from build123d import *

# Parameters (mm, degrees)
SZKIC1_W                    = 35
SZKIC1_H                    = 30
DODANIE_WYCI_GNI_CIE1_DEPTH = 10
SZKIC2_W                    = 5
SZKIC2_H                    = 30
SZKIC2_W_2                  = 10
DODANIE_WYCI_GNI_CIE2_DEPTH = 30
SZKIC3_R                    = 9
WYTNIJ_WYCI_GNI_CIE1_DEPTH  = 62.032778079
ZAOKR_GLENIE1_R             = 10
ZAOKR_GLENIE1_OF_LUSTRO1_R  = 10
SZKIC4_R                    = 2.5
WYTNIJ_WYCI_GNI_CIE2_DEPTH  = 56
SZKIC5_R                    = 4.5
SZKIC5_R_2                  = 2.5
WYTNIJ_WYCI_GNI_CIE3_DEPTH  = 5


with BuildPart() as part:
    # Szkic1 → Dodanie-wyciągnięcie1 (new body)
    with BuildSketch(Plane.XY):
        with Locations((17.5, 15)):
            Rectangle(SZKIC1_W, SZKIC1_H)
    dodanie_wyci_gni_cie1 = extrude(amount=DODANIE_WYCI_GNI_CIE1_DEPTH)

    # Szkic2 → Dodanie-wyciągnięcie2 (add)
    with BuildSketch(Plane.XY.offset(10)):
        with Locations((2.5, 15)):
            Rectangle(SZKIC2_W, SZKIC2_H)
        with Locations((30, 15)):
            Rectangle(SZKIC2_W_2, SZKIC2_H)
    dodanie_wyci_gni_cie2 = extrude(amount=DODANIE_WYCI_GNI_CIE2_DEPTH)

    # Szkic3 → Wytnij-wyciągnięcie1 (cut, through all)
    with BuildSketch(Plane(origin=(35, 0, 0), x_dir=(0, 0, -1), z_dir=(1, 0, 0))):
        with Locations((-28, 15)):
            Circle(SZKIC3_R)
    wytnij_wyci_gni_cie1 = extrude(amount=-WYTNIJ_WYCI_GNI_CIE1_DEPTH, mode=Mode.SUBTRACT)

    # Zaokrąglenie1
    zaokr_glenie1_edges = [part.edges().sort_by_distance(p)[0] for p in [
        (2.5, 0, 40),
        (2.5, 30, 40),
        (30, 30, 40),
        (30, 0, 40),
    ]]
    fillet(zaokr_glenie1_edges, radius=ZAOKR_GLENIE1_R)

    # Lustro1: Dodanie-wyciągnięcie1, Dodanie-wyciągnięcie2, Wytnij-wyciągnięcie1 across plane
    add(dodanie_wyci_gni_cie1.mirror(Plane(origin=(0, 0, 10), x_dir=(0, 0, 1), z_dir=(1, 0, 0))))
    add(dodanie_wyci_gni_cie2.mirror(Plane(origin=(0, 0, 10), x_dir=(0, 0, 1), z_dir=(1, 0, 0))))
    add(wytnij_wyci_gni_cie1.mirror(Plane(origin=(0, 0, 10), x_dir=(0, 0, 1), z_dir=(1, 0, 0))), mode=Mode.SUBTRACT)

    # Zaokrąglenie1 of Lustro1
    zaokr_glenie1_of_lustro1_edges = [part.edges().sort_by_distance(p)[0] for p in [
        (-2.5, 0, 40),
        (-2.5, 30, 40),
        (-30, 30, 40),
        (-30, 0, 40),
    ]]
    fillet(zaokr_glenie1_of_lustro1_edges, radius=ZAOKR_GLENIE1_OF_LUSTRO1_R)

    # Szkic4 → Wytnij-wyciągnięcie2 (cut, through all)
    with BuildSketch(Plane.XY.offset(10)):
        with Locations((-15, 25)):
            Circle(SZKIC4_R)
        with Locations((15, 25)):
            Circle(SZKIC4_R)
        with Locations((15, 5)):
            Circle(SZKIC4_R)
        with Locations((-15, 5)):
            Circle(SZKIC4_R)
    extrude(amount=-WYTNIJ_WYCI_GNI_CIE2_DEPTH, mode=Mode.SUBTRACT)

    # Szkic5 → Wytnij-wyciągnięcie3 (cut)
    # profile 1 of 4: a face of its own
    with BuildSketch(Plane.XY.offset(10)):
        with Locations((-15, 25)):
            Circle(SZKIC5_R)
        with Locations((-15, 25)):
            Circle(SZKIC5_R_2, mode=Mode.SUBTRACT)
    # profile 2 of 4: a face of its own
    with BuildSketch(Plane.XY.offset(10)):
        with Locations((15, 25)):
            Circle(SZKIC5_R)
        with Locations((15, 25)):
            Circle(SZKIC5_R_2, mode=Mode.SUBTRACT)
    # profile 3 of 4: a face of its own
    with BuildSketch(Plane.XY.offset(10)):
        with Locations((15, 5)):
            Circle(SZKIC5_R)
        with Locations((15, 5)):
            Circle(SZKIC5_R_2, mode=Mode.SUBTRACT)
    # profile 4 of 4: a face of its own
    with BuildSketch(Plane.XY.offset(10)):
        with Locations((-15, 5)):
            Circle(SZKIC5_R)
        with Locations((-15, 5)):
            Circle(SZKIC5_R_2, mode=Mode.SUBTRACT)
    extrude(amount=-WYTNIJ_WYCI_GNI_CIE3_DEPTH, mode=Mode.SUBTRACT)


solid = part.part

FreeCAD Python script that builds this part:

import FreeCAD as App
import Part
import Sketcher

V = App.Vector


def edges_at(feature, points):
    """Names of the edges that pass closest to the given points."""
    edges = feature.Shape.Edges
    near = lambda p: min(range(len(edges)), key=lambda i: edges[i].distToShape(Part.Vertex(*p))[0])
    return sorted({f"Edge{near(p) + 1}" for p in points})

doc = App.newDocument("Part")
params = doc.addObject("Spreadsheet::Sheet", "Params")
for row, (alias, value) in enumerate([
    ("sketch1_width", "35 mm"),
    ("sketch1_height", "30 mm"),
    ("pad1_length", "10 mm"),
    ("sketch2_width", "5 mm"),
    ("sketch2_width2", "10 mm"),
    ("sketch2_height", "30 mm"),
    ("pad2_length", "30 mm"),
    ("sketch3_diameter", "18 mm"),
    ("fillet_radius", "10 mm"),
    ("fillet2_radius", "10 mm"),
    ("sketch4_diameter", "5 mm"),
    ("sketch5_diameter", "9 mm"),
    ("sketch5_diameter2", "5 mm"),
    ("pocket3_length", "5 mm"),
], start=1):
    params.set(f"A{row}", alias)
    params.set(f"B{row}", "=" + value)
    params.setAlias(f"B{row}", alias)

body = doc.addObject("PartDesign::Body", "Body")

# Sketch on XY plane
sketch1 = body.newObject("Sketcher::SketchObject", "Sketch")
sketch1.AttachmentSupport = (doc.getObject("XY_Plane"), [""])
sketch1.MapMode = "FlatFace"
sketch1.addGeometry(Part.LineSegment(V(0, 30, 0), V(0, 0, 0)), False)
sketch1.addGeometry(Part.LineSegment(V(0, 0, 0), V(35, 0, 0)), False)
sketch1.addGeometry(Part.LineSegment(V(35, 0, 0), V(35, 30, 0)), False)
sketch1.addGeometry(Part.LineSegment(V(35, 30, 0), V(0, 30, 0)), False)
sketch1.addConstraint(Sketcher.Constraint("Coincident", 0, 2, 1, 1))
sketch1.addConstraint(Sketcher.Constraint("Coincident", 1, 2, 2, 1))
sketch1.addConstraint(Sketcher.Constraint("Coincident", 2, 2, 3, 1))
sketch1.addConstraint(Sketcher.Constraint("Coincident", 3, 2, 0, 1))
sketch1.addConstraint(Sketcher.Constraint("Vertical", 0))
sketch1.addConstraint(Sketcher.Constraint("Horizontal", 1))
sketch1.addConstraint(Sketcher.Constraint("Vertical", 2))
sketch1.addConstraint(Sketcher.Constraint("Horizontal", 3))
sketch1.addConstraint(Sketcher.Constraint("Coincident", 0, 2, -1, 1))
sketch1.addConstraint(Sketcher.Constraint("DistanceX", 1, 1, 1, 2, 35.0))
sketch1.addConstraint(Sketcher.Constraint("DistanceY", 0, 2, 0, 1, 30.0))
sketch1.setExpression("Constraints[9]", "Params.sketch1_width")
sketch1.setExpression("Constraints[10]", "Params.sketch1_height")
pad1 = body.newObject("PartDesign::Pad", "Pad")
pad1.Profile = sketch1
pad1.setExpression("Length", "Params.pad1_length")

# Sketch on XY plane
sketch2 = body.newObject("Sketcher::SketchObject", "Sketch001")
sketch2.AttachmentSupport = (doc.getObject("XY_Plane"), [""])
sketch2.MapMode = "FlatFace"
sketch2.AttachmentOffset = App.Placement(V(0, 0, 10), App.Rotation())
sketch2.addGeometry(Part.LineSegment(V(0, 30, 0), V(0, 0, 0)), False)
sketch2.addGeometry(Part.LineSegment(V(0, 0, 0), V(5, 0, 0)), False)
sketch2.addGeometry(Part.LineSegment(V(5, 0, 0), V(5, 30, 0)), False)
sketch2.addGeometry(Part.LineSegment(V(5, 30, 0), V(0, 30, 0)), False)
sketch2.addGeometry(Part.LineSegment(V(25, 30, 0), V(25, 0, 0)), False)
sketch2.addGeometry(Part.LineSegment(V(25, 0, 0), V(35, 0, 0)), False)
sketch2.addGeometry(Part.LineSegment(V(35, 0, 0), V(35, 30, 0)), False)
sketch2.addGeometry(Part.LineSegment(V(35, 30, 0), V(25, 30, 0)), False)
sketch2.addConstraint(Sketcher.Constraint("Coincident", 0, 2, 1, 1))
sketch2.addConstraint(Sketcher.Constraint("Coincident", 1, 2, 2, 1))
sketch2.addConstraint(Sketcher.Constraint("Coincident", 2, 2, 3, 1))
sketch2.addConstraint(Sketcher.Constraint("Coincident", 3, 2, 0, 1))
sketch2.addConstraint(Sketcher.Constraint("Coincident", 4, 2, 5, 1))
sketch2.addConstraint(Sketcher.Constraint("Coincident", 5, 2, 6, 1))
sketch2.addConstraint(Sketcher.Constraint("Coincident", 6, 2, 7, 1))
sketch2.addConstraint(Sketcher.Constraint("Coincident", 7, 2, 4, 1))
sketch2.addConstraint(Sketcher.Constraint("Vertical", 0))
sketch2.addConstraint(Sketcher.Constraint("Horizontal", 1))
sketch2.addConstraint(Sketcher.Constraint("Vertical", 2))
sketch2.addConstraint(Sketcher.Constraint("Horizontal", 3))
sketch2.addConstraint(Sketcher.Constraint("Vertical", 4))
sketch2.addConstraint(Sketcher.Constraint("Horizontal", 5))
sketch2.addConstraint(Sketcher.Constraint("Vertical", 6))
sketch2.addConstraint(Sketcher.Constraint("Horizontal", 7))
sketch2.addConstraint(Sketcher.Constraint("Coincident", 0, 2, -1, 1))
sketch2.addConstraint(Sketcher.Constraint("PointOnObject", 4, 2, -1))
sketch2.addConstraint(Sketcher.Constraint("Horizontal", 3, 2, 6, 2))
sketch2.addConstraint(Sketcher.Constraint("DistanceX", 1, 1, 1, 2, 5.0))
sketch2.addConstraint(Sketcher.Constraint("DistanceX", 5, 1, 5, 2, 10.0))
sketch2.addConstraint(Sketcher.Constraint("DistanceY", 0, 2, 0, 1, 30.0))
sketch2.addConstraint(Sketcher.Constraint("DistanceX", -1, 1, 4, 2, 25.0))
sketch2.setExpression("Constraints[19]", "Params.sketch2_width")
sketch2.setExpression("Constraints[20]", "Params.sketch2_width2")
sketch2.setExpression("Constraints[21]", "Params.sketch2_height")
pad2 = body.newObject("PartDesign::Pad", "Pad001")
pad2.Profile = sketch2
pad2.setExpression("Length", "Params.pad2_length")

# Sketch on YZ plane
sketch3 = body.newObject("Sketcher::SketchObject", "Sketch002")
sketch3.AttachmentSupport = (doc.getObject("YZ_Plane"), [""])
sketch3.MapMode = "FlatFace"
sketch3.AttachmentOffset = App.Placement(V(0, 0, 35), App.Rotation())
sketch3.addGeometry(Part.Circle(V(15, 28, 0), V(0, 0, 1), 9), False)
sketch3.addConstraint(Sketcher.Constraint("Diameter", 0, 18.0))
sketch3.addConstraint(Sketcher.Constraint("DistanceX", -1, 1, 0, 3, 15.0))
sketch3.addConstraint(Sketcher.Constraint("DistanceY", -1, 1, 0, 3, 28.0))
sketch3.setExpression("Constraints[0]", "Params.sketch3_diameter")
pocket1 = body.newObject("PartDesign::Pocket", "Pocket")
pocket1.Profile = sketch3
pocket1.Type = "ThroughAll"
doc.recompute()

fillet = body.newObject("PartDesign::Fillet", "Fillet")
fillet.Base = (pocket1, edges_at(pocket1, [
    (2.5, 0, 40),
    (2.5, 30, 40),
    (30, 30, 40),
    (30, 0, 40),
]))
fillet.setExpression("Radius", "Params.fillet_radius")
doc.recompute()

mirrored = body.newObject("PartDesign::Mirrored", "Mirrored")
mirrored.Originals = [pad1, pad2, pocket1]
mirrored.MirrorPlane = (doc.getObject("YZ_Plane"), [""])
body.Tip = mirrored
doc.recompute()

fillet2 = body.newObject("PartDesign::Fillet", "Fillet001")
fillet2.Base = (mirrored, edges_at(mirrored, [
    (-2.5, 0, 40),
    (-2.5, 30, 40),
    (-30, 30, 40),
    (-30, 0, 40),
]))
fillet2.setExpression("Radius", "Params.fillet2_radius")

# Sketch on XY plane
sketch4 = body.newObject("Sketcher::SketchObject", "Sketch003")
sketch4.AttachmentSupport = (doc.getObject("XY_Plane"), [""])
sketch4.MapMode = "FlatFace"
sketch4.AttachmentOffset = App.Placement(V(0, 0, 10), App.Rotation())
sketch4.addGeometry(Part.Circle(V(-15, 25, 0), V(0, 0, 1), 2.5), False)
sketch4.addGeometry(Part.Circle(V(15, 25, 0), V(0, 0, 1), 2.5), False)
sketch4.addGeometry(Part.Circle(V(15, 5, 0), V(0, 0, 1), 2.5), False)
sketch4.addGeometry(Part.Circle(V(-15, 5, 0), V(0, 0, 1), 2.5), False)
sketch4.addConstraint(Sketcher.Constraint("Equal", 0, 1))
sketch4.addConstraint(Sketcher.Constraint("Equal", 1, 2))
sketch4.addConstraint(Sketcher.Constraint("Equal", 2, 3))
sketch4.addConstraint(Sketcher.Constraint("Symmetric", 0, 3, 1, 3, -2))
sketch4.addConstraint(Sketcher.Constraint("Symmetric", 2, 3, 3, 3, -2))
sketch4.addConstraint(Sketcher.Constraint("Vertical", 1, 3, 2, 3))
sketch4.addConstraint(Sketcher.Constraint("Diameter", 0, 5.0))
sketch4.addConstraint(Sketcher.Constraint("DistanceX", 0, 3, -1, 1, 15.0))
sketch4.addConstraint(Sketcher.Constraint("DistanceY", -1, 1, 0, 3, 25.0))
sketch4.addConstraint(Sketcher.Constraint("DistanceY", -1, 1, 2, 3, 5.0))
sketch4.setExpression("Constraints[6]", "Params.sketch4_diameter")
pocket2 = body.newObject("PartDesign::Pocket", "Pocket001")
pocket2.Profile = sketch4
pocket2.Type = "ThroughAll"

# Sketch on XY plane
sketch5 = body.newObject("Sketcher::SketchObject", "Sketch004")
sketch5.AttachmentSupport = (doc.getObject("XY_Plane"), [""])
sketch5.MapMode = "FlatFace"
sketch5.AttachmentOffset = App.Placement(V(0, 0, 10), App.Rotation())
sketch5.addGeometry(Part.Circle(V(-15, 25, 0), V(0, 0, 1), 4.5), False)
sketch5.addGeometry(Part.Circle(V(-15, 25, 0), V(0, 0, 1), 2.5), False)
sketch5.addGeometry(Part.Circle(V(15, 25, 0), V(0, 0, 1), 4.5), False)
sketch5.addGeometry(Part.Circle(V(15, 25, 0), V(0, 0, 1), 2.5), False)
sketch5.addGeometry(Part.Circle(V(15, 5, 0), V(0, 0, 1), 4.5), False)
sketch5.addGeometry(Part.Circle(V(15, 5, 0), V(0, 0, 1), 2.5), False)
sketch5.addGeometry(Part.Circle(V(-15, 5, 0), V(0, 0, 1), 4.5), False)
sketch5.addGeometry(Part.Circle(V(-15, 5, 0), V(0, 0, 1), 2.5), False)
sketch5.addConstraint(Sketcher.Constraint("Coincident", 1, 3, 0, 3))
sketch5.addConstraint(Sketcher.Constraint("Coincident", 3, 3, 2, 3))
sketch5.addConstraint(Sketcher.Constraint("Coincident", 5, 3, 4, 3))
sketch5.addConstraint(Sketcher.Constraint("Coincident", 7, 3, 6, 3))
sketch5.addConstraint(Sketcher.Constraint("Equal", 0, 2))
sketch5.addConstraint(Sketcher.Constraint("Equal", 1, 3))
sketch5.addConstraint(Sketcher.Constraint("Equal", 2, 4))
sketch5.addConstraint(Sketcher.Constraint("Equal", 3, 5))
sketch5.addConstraint(Sketcher.Constraint("Equal", 4, 6))
sketch5.addConstraint(Sketcher.Constraint("Equal", 5, 7))
sketch5.addConstraint(Sketcher.Constraint("Symmetric", 0, 3, 2, 3, -2))
sketch5.addConstraint(Sketcher.Constraint("Symmetric", 4, 3, 6, 3, -2))
sketch5.addConstraint(Sketcher.Constraint("Vertical", 3, 3, 4, 3))
sketch5.addConstraint(Sketcher.Constraint("Diameter", 0, 9.0))
sketch5.addConstraint(Sketcher.Constraint("Diameter", 1, 5.0))
sketch5.addConstraint(Sketcher.Constraint("DistanceX", 0, 3, -1, 1, 15.0))
sketch5.addConstraint(Sketcher.Constraint("DistanceY", -1, 1, 0, 3, 25.0))
sketch5.addConstraint(Sketcher.Constraint("DistanceY", -1, 1, 4, 3, 5.0))
sketch5.setExpression("Constraints[13]", "Params.sketch5_diameter")
sketch5.setExpression("Constraints[14]", "Params.sketch5_diameter2")
pocket3 = body.newObject("PartDesign::Pocket", "Pocket002")
pocket3.Profile = sketch5
pocket3.setExpression("Length", "Params.pocket3_length")

doc.recompute()
